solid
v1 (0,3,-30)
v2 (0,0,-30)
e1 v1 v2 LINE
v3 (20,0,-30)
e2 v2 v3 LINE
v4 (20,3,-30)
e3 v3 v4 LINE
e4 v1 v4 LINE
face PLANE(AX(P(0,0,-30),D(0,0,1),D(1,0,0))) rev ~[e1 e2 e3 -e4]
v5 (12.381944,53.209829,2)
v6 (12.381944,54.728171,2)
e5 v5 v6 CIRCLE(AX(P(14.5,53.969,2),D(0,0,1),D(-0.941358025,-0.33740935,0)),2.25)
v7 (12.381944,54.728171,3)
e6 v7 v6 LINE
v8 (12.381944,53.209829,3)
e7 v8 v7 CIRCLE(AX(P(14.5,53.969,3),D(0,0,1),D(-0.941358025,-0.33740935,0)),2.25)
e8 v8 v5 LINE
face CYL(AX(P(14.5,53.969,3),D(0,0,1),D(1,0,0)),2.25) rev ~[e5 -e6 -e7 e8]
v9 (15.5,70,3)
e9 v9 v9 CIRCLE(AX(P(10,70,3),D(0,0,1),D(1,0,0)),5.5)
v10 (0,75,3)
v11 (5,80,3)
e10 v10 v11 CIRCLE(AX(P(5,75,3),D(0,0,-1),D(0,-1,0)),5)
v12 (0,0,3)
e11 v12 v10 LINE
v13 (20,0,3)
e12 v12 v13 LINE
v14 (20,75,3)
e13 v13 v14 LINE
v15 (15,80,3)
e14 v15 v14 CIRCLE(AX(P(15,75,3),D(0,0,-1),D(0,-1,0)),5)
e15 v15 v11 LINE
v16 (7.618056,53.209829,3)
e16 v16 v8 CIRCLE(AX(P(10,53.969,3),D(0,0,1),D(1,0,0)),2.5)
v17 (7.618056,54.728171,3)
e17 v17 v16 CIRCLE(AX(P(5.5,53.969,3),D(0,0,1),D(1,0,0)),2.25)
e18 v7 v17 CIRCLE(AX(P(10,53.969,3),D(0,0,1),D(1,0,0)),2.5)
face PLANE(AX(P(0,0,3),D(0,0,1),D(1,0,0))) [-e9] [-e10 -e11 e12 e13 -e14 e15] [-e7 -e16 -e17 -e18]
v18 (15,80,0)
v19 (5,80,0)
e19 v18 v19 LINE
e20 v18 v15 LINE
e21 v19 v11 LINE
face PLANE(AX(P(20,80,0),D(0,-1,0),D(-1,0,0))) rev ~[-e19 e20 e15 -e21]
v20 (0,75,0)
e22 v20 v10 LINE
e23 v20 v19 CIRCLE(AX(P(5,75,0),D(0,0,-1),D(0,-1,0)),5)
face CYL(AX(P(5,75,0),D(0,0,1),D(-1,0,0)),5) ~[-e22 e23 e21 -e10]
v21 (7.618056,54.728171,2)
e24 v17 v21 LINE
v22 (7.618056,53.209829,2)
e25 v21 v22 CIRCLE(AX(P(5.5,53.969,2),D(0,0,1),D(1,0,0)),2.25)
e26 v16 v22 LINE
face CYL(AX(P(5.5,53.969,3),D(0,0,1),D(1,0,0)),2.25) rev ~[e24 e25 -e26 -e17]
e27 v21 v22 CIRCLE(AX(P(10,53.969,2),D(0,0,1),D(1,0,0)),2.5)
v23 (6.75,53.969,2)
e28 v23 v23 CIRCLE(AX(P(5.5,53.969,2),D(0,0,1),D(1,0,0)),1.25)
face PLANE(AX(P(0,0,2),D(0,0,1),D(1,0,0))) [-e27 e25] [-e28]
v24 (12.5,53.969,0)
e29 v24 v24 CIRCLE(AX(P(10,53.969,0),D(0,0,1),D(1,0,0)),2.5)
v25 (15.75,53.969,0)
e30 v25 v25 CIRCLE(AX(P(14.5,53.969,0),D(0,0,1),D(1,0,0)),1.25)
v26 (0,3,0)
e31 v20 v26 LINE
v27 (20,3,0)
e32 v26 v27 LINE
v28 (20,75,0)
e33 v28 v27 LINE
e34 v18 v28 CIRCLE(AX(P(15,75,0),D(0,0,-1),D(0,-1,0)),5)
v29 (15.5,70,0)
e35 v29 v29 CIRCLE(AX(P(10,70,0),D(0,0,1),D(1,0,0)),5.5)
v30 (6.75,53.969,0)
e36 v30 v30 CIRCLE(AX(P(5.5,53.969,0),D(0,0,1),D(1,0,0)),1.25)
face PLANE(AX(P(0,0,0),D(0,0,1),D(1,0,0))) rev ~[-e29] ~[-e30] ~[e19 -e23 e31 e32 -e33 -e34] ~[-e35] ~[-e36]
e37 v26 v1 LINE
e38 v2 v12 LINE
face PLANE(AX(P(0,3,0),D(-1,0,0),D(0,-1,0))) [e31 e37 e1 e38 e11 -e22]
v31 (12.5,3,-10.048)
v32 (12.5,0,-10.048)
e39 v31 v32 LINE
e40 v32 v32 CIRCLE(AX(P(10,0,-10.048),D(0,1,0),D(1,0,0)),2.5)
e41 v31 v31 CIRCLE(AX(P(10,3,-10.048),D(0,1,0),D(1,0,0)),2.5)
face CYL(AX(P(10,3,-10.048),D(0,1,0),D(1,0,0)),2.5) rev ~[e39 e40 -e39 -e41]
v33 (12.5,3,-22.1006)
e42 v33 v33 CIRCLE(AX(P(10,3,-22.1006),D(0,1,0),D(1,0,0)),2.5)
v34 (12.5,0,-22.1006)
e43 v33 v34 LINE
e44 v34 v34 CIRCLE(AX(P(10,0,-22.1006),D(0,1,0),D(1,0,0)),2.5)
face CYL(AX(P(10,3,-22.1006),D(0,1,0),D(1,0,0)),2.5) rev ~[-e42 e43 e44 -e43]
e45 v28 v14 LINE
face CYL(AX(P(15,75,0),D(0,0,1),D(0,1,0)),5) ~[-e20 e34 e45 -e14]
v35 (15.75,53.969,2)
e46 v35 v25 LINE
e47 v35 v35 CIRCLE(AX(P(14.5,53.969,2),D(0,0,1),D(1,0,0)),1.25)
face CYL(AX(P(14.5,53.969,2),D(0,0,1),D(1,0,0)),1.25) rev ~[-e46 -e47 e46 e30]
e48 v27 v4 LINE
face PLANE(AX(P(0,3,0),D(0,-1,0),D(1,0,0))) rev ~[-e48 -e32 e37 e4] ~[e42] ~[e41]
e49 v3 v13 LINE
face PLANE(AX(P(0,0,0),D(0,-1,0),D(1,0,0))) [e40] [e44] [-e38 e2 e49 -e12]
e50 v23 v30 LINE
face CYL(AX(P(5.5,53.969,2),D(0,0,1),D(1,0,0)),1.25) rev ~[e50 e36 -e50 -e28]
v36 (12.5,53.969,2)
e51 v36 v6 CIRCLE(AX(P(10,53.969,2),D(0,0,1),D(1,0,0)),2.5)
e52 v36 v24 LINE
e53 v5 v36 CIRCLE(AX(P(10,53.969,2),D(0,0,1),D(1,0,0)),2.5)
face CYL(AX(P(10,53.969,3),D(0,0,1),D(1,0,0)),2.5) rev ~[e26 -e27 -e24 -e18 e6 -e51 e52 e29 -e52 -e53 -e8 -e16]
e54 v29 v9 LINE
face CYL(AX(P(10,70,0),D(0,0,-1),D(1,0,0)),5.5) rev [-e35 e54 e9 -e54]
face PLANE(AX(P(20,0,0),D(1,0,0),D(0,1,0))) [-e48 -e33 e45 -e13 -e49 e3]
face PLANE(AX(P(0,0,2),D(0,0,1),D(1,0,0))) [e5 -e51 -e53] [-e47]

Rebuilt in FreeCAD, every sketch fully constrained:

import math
import FreeCAD as App
import Part
import Sketcher
from FreeCAD import Vector
Q = App.Units.Quantity


def edges_at(feature, points):
    """Names of the edges that pass closest to the given points."""
    edges = feature.Shape.Edges
    near = lambda p: min(range(len(edges)), key=lambda i: edges[i].distToShape(Part.Vertex(*p))[0])
    return sorted({f"Edge{near(p) + 1}" for p in points})

doc = App.newDocument("Part")
body = doc.addObject("PartDesign::Body", "Body")

# Sketch on XY plane
sketch1 = body.newObject("Sketcher::SketchObject", "Sketch")
sketch1.AttachmentSupport = (doc.getObject("XY_Plane"), [""])
sketch1.MapMode = "FlatFace"
sketch1.addGeometry([
    Part.LineSegment(Vector(0, 0, 0), Vector(20, 0, 0)),  # 0
    Part.LineSegment(Vector(20, 0, 0), Vector(20, 80, 0)),  # 1
    Part.LineSegment(Vector(20, 80, 0), Vector(0, 80, 0)),  # 2
    Part.LineSegment(Vector(0, 80, 0), Vector(0, 0, 0)),  # 3
    Part.Circle(Vector(10, 70, 0), Vector(0, 0, 1), 6),  # 4
], False)
sketch1.addConstraint([
    Sketcher.Constraint("Coincident", 0, 2, 1, 1),
    Sketcher.Constraint("Coincident", 1, 2, 2, 1),
    Sketcher.Constraint("Coincident", 2, 2, 3, 1),
    Sketcher.Constraint("Coincident", 3, 2, 0, 1),
    Sketcher.Constraint("Horizontal", 0),
    Sketcher.Constraint("Vertical", 1),
    Sketcher.Constraint("Horizontal", 2),
    Sketcher.Constraint("Vertical", 3),
    Sketcher.Constraint("Coincident", 3, 2, -1, 1),
    Sketcher.Constraint("Diameter", 4, Q("11 mm")),
    Sketcher.Constraint("DistanceX", 0, 1, 0, 2, Q("20 mm")),
    Sketcher.Constraint("DistanceY", 1, 1, 1, 2, Q("80 mm")),
    Sketcher.Constraint("DistanceY", -1, 1, 4, 3, Q("70 mm")),
    Sketcher.Constraint("DistanceX", -1, 1, 4, 3, Q("10 mm")),
])
pad1 = body.newObject("PartDesign::Pad", "Pad")
pad1.Profile = sketch1
pad1.Length = 3
doc.recompute()

fillet = body.newObject("PartDesign::Fillet", "Fillet")
fillet.Base = (pad1, edges_at(pad1, [(20, 80, 1.5), (0, 80, 1.5)]))
fillet.Radius = 5

# Sketch on XY plane
sketch2 = body.newObject("Sketcher::SketchObject", "Sketch001")
sketch2.AttachmentSupport = (doc.getObject("XY_Plane"), [""])
sketch2.MapMode = "FlatFace"
sketch2.addGeometry([
    Part.LineSegment(Vector(0, 3, 0), Vector(0, 0, 0)),
    Part.LineSegment(Vector(0, 0, 0), Vector(20, 0, 0)),
    Part.LineSegment(Vector(20, 0, 0), Vector(20, 3, 0)),
    Part.LineSegment(Vector(20, 3, 0), Vector(0, 3, 0)),
], False)
sketch2.addConstraint([
    Sketcher.Constraint("Coincident", 0, 2, 1, 1),
    Sketcher.Constraint("Coincident", 1, 2, 2, 1),
    Sketcher.Constraint("Coincident", 2, 2, 3, 1),
    Sketcher.Constraint("Coincident", 3, 2, 0, 1),
    Sketcher.Constraint("Vertical", 0),
    Sketcher.Constraint("Horizontal", 1),
    Sketcher.Constraint("Vertical", 2),
    Sketcher.Constraint("Horizontal", 3),
    Sketcher.Constraint("Coincident", 0, 2, -1, 1),
    Sketcher.Constraint("DistanceX", 1, 1, 1, 2, Q("20 mm")),
    Sketcher.Constraint("DistanceY", 0, 2, 0, 1, Q("3 mm")),
])
pad2 = body.newObject("PartDesign::Pad", "Pad001")
pad2.Profile = sketch2
pad2.Length = 30
pad2.Reversed = True

# Sketch on XZ plane
sketch3 = body.newObject("Sketcher::SketchObject", "Sketch002")
sketch3.AttachmentSupport = (doc.getObject("XZ_Plane"), [""])
sketch3.MapMode = "FlatFace"
sketch3.AttachmentOffset = App.Placement(Vector(0, 0, -3), App.Rotation())
sketch3.addGeometry([
    Part.Circle(Vector(10, -22.1, 0), Vector(0, 0, 1), 2.5),
    Part.Circle(Vector(10, -10, 0), Vector(0, 0, 1), 2.5),
], False)
sketch3.addConstraint([
    Sketcher.Constraint("Equal", 0, 1),
    Sketcher.Constraint("Vertical", 0, 3, 1, 3),
    Sketcher.Constraint("Diameter", 0, Q("5 mm")),
    Sketcher.Constraint("DistanceX", -1, 1, 0, 3, Q("10 mm")),
    Sketcher.Constraint("DistanceY", 1, 3, -1, 1, Q("10.048 mm")),
    Sketcher.Constraint("DistanceY", 0, 3, -1, 1, Q("22.1006 mm")),
])
pocket1 = body.newObject("PartDesign::Pocket", "Pocket")
pocket1.Profile = sketch3
pocket1.Type = "ThroughAll"
pocket1.Reversed = True

# Sketch on XY plane
sketch4 = body.newObject("Sketcher::SketchObject", "Sketch003")
sketch4.AttachmentSupport = (doc.getObject("XY_Plane"), [""])
sketch4.MapMode = "FlatFace"
sketch4.addGeometry(Part.Circle(Vector(10, 70, 0), Vector(0, 0, 1), 6), False)
sketch4.addConstraint([
    Sketcher.Constraint("Diameter", 0, Q("11 mm")),
    Sketcher.Constraint("DistanceY", -1, 1, 0, 3, Q("70 mm")),
    Sketcher.Constraint("DistanceX", -1, 1, 0, 3, Q("10 mm")),
])
pocket2 = body.newObject("PartDesign::Pocket", "Pocket001")
pocket2.Profile = sketch4
pocket2.Length = 10
pocket2.Reversed = True

# Sketch on XY plane
sketch5 = body.newObject("Sketcher::SketchObject", "Sketch004")
sketch5.AttachmentSupport = (doc.getObject("XY_Plane"), [""])
sketch5.MapMode = "FlatFace"
sketch5.addGeometry(Part.Circle(Vector(10, 70, 0), Vector(0, 0, 1), 6), False)
sketch5.addConstraint([
    Sketcher.Constraint("Diameter", 0, Q("11 mm")),
    Sketcher.Constraint("DistanceY", -1, 1, 0, 3, Q("70 mm")),
    Sketcher.Constraint("DistanceX", -1, 1, 0, 3, Q("10 mm")),
])
pocket3 = body.newObject("PartDesign::Pocket", "Pocket002")
pocket3.Profile = sketch5
pocket3.Length = 10
pocket3.Reversed = True

# Sketch on XY plane
sketch6 = body.newObject("Sketcher::SketchObject", "Sketch005")
sketch6.AttachmentSupport = (doc.getObject("XY_Plane"), [""])
sketch6.MapMode = "FlatFace"
sketch6.AttachmentOffset = App.Placement(Vector(0, 0, 3), App.Rotation())
sketch6.addGeometry([
    Part.ArcOfCircle(Part.Circle(Vector(14.5, 54, 0), Vector(0, 0, 1), 2.2), math.radians(-160), math.radians(160)),
    Part.ArcOfCircle(Part.Circle(Vector(10, 54, 0), Vector(0, 0, 1), 2.5), math.radians(18), math.radians(162)),
    Part.ArcOfCircle(Part.Circle(Vector(5.5, 54, 0), Vector(0, 0, 1), 2.2), math.radians(20), math.radians(340)),
    Part.ArcOfCircle(Part.Circle(Vector(10, 54, 0), Vector(0, 0, 1), 2.5), math.radians(-162), math.radians(-18)),
], False)
sketch6.addConstraint([
    Sketcher.Constraint("Coincident", 0, 2, 1, 1),
    Sketcher.Constraint("Coincident", 1, 2, 2, 1),
    Sketcher.Constraint("Coincident", 2, 2, 3, 1),
    Sketcher.Constraint("Coincident", 3, 2, 0, 1),
    Sketcher.Constraint("Coincident", 3, 3, 1, 3),
    Sketcher.Constraint("Equal", 0, 2),
    Sketcher.Constraint("Equal", 1, 3),
    Sketcher.Constraint("Horizontal", 0, 3, 1, 3),
    Sketcher.Constraint("Horizontal", 1, 3, 2, 3),
    Sketcher.Constraint("Horizontal", 0, 2, 1, 2),
    Sketcher.Constraint("Radius", 1, Q("2.5 mm")),
    Sketcher.Constraint("Radius", 0, Q("2.25 mm")),
    Sketcher.Constraint("DistanceX", 1, 3, 0, 3, Q("4.5 mm")),
    Sketcher.Constraint("DistanceX", -1, 1, 1, 3, Q("10 mm")),
    Sketcher.Constraint("DistanceY", -1, 1, 0, 3, Q("53.969 mm")),
])
pocket4 = body.newObject("PartDesign::Pocket", "Pocket003")
pocket4.Profile = sketch6
pocket4.Length = 1

# Sketch on XY plane
sketch7 = body.newObject("Sketcher::SketchObject", "Sketch006")
sketch7.AttachmentSupport = (doc.getObject("XY_Plane"), [""])
sketch7.MapMode = "FlatFace"
sketch7.AttachmentOffset = App.Placement(Vector(0, 0, 3), App.Rotation())
sketch7.addGeometry(Part.Circle(Vector(10, 54, 0), Vector(0, 0, 1), 2.5), False)
sketch7.addConstraint([
    Sketcher.Constraint("Diameter", 0, Q("5 mm")),
    Sketcher.Constraint("DistanceX", -1, 1, 0, 3, Q("10 mm")),
    Sketcher.Constraint("DistanceY", -1, 1, 0, 3, Q("53.969 mm")),
])
pocket5 = body.newObject("PartDesign::Pocket", "Pocket004")
pocket5.Profile = sketch7
pocket5.Type = "ThroughAll"

# Sketch on XY plane
sketch8 = body.newObject("Sketcher::SketchObject", "Sketch007")
sketch8.AttachmentSupport = (doc.getObject("XY_Plane"), [""])
sketch8.MapMode = "FlatFace"
sketch8.AttachmentOffset = App.Placement(Vector(0, 0, 2), App.Rotation())
sketch8.addGeometry([
    Part.Circle(Vector(5.5, 54, 0), Vector(0, 0, 1), 1.2),
    Part.Circle(Vector(14.5, 54, 0), Vector(0, 0, 1), 1.2),
], False)
sketch8.addConstraint([
    Sketcher.Constraint("Equal", 0, 1),
    Sketcher.Constraint("Horizontal", 0, 3, 1, 3),
    Sketcher.Constraint("Diameter", 0, Q("2.5 mm")),
    Sketcher.Constraint("DistanceX", 0, 3, 1, 3, Q("9 mm")),
    Sketcher.Constraint("DistanceX", -1, 1, 0, 3, Q("5.5 mm")),
    Sketcher.Constraint("DistanceY", -1, 1, 0, 3, Q("53.969 mm")),
])
pocket6 = body.newObject("PartDesign::Pocket", "Pocket005")
pocket6.Profile = sketch8
pocket6.Type = "ThroughAll"

doc.recompute()
